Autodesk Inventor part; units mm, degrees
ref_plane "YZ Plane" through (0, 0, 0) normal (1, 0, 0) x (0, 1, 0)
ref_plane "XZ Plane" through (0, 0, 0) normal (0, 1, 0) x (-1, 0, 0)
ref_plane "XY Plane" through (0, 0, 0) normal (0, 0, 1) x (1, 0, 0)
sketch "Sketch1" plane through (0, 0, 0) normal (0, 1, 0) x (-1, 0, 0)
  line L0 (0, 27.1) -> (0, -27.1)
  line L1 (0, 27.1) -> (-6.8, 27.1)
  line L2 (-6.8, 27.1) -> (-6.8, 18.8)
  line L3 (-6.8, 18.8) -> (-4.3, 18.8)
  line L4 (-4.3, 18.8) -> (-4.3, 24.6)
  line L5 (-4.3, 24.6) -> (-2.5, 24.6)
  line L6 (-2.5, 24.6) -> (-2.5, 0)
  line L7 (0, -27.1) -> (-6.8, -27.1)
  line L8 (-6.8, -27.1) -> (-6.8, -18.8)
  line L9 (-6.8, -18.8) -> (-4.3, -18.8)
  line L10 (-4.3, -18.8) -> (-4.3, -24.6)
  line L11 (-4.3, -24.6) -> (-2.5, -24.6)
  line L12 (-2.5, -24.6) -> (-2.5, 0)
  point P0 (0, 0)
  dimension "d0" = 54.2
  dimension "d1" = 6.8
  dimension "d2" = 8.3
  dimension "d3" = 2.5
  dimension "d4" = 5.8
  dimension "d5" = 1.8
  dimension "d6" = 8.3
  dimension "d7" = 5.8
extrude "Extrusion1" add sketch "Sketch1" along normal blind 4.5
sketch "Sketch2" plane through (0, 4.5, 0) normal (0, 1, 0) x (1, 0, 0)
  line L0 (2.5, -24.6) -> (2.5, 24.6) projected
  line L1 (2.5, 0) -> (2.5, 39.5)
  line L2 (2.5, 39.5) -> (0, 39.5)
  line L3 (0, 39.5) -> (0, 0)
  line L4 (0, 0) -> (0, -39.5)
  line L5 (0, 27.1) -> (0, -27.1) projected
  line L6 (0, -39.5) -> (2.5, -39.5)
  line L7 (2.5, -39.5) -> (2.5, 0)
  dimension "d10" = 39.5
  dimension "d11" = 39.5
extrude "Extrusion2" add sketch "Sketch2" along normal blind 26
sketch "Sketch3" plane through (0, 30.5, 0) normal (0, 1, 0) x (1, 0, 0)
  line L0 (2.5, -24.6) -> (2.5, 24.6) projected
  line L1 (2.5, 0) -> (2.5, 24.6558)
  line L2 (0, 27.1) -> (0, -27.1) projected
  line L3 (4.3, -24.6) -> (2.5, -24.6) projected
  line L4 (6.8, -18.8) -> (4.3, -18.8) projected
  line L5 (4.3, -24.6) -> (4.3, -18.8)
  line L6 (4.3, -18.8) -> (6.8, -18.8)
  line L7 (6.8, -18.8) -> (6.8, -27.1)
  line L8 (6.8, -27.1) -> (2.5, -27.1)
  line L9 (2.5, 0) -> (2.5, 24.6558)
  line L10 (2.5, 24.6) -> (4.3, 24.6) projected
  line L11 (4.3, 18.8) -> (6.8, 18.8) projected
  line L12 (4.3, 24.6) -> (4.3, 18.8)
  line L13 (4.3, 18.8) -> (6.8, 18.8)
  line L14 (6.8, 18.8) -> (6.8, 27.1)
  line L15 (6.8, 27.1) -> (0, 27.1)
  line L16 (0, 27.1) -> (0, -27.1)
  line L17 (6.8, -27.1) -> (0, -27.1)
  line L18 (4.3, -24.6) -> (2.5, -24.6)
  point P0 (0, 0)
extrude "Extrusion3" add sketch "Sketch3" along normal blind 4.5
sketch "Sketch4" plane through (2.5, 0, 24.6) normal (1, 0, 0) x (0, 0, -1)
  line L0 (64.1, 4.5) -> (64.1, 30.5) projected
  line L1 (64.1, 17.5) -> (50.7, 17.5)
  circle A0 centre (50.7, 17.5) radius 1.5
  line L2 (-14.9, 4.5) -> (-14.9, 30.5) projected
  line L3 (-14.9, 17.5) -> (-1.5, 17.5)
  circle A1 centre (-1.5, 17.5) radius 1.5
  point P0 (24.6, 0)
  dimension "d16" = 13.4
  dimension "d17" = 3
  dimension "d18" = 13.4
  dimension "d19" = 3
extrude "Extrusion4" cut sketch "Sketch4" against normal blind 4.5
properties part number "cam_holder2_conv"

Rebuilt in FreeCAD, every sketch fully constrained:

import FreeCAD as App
import Part
import Sketcher

doc = App.newDocument("Part")
body = doc.addObject("PartDesign::Body", "Body")

sketch1 = body.newObject("Sketcher::SketchObject", "Sketch")
sketch1.AttachmentSupport = (doc.getObject("XZ_Plane"), [""])
sketch1.MapMode = "FlatFace"
sketch1.addGeometry(Part.LineSegment(App.Vector(0, -27.1, 0), App.Vector(0, 27.1, 0)), False)
sketch1.addGeometry(Part.LineSegment(App.Vector(0, 27.1, 0), App.Vector(6.8, 27.1, 0)), False)
sketch1.addGeometry(Part.LineSegment(App.Vector(6.8, 27.1, 0), App.Vector(6.8, 18.8, 0)), False)
sketch1.addGeometry(Part.LineSegment(App.Vector(6.8, 18.8, 0), App.Vector(4.3, 18.8, 0)), False)
sketch1.addGeometry(Part.LineSegment(App.Vector(4.3, 18.8, 0), App.Vector(4.3, 24.6, 0)), False)
sketch1.addGeometry(Part.LineSegment(App.Vector(4.3, 24.6, 0), App.Vector(2.5, 24.6, 0)), False)
sketch1.addGeometry(Part.LineSegment(App.Vector(2.5, 24.6, 0), App.Vector(2.5, -24.6, 0)), False)
sketch1.addGeometry(Part.LineSegment(App.Vector(2.5, -24.6, 0), App.Vector(4.3, -24.6, 0)), False)
sketch1.addGeometry(Part.LineSegment(App.Vector(4.3, -24.6, 0), App.Vector(4.3, -18.8, 0)), False)
sketch1.addGeometry(Part.LineSegment(App.Vector(4.3, -18.8, 0), App.Vector(6.8, -18.8, 0)), False)
sketch1.addGeometry(Part.LineSegment(App.Vector(6.8, -18.8, 0), App.Vector(6.8, -27.1, 0)), False)
sketch1.addGeometry(Part.LineSegment(App.Vector(6.8, -27.1, 0), App.Vector(0, -27.1, 0)), False)
sketch1.addConstraint(Sketcher.Constraint("Coincident", 0, 2, 1, 1))
sketch1.addConstraint(Sketcher.Constraint("Coincident", 1, 2, 2, 1))
sketch1.addConstraint(Sketcher.Constraint("Coincident", 2, 2, 3, 1))
sketch1.addConstraint(Sketcher.Constraint("Coincident", 3, 2, 4, 1))
sketch1.addConstraint(Sketcher.Constraint("Coincident", 4, 2, 5, 1))
sketch1.addConstraint(Sketcher.Constraint("Coincident", 5, 2, 6, 1))
sketch1.addConstraint(Sketcher.Constraint("Coincident", 6, 2, 7, 1))
sketch1.addConstraint(Sketcher.Constraint("Coincident", 7, 2, 8, 1))
sketch1.addConstraint(Sketcher.Constraint("Coincident", 8, 2, 9, 1))
sketch1.addConstraint(Sketcher.Constraint("Coincident", 9, 2, 10, 1))
sketch1.addConstraint(Sketcher.Constraint("Coincident", 10, 2, 11, 1))
sketch1.addConstraint(Sketcher.Constraint("Coincident", 11, 2, 0, 1))
sketch1.addConstraint(Sketcher.Constraint("Vertical", 0))
sketch1.addConstraint(Sketcher.Constraint("Horizontal", 1))
sketch1.addConstraint(Sketcher.Constraint("Vertical", 2))
sketch1.addConstraint(Sketcher.Constraint("Horizontal", 3))
sketch1.addConstraint(Sketcher.Constraint("Vertical", 4))
sketch1.addConstraint(Sketcher.Constraint("Horizontal", 5))
sketch1.addConstraint(Sketcher.Constraint("Vertical", 6))
sketch1.addConstraint(Sketcher.Constraint("Horizontal", 7))
sketch1.addConstraint(Sketcher.Constraint("Vertical", 8))
sketch1.addConstraint(Sketcher.Constraint("Horizontal", 9))
sketch1.addConstraint(Sketcher.Constraint("Vertical", 10))
sketch1.addConstraint(Sketcher.Constraint("Horizontal", 11))
sketch1.addConstraint(Sketcher.Constraint("Symmetric", 0, 2, 11, 2, -1, 1))
sketch1.addConstraint(Sketcher.Constraint("Symmetric", 4, 2, 7, 2, -1))
sketch1.addConstraint(Sketcher.Constraint("Symmetric", 2, 2, 9, 2, -1))
sketch1.addConstraint(Sketcher.Constraint("DistanceX", 1, 1, 1, 2, 6.8))
sketch1.addConstraint(Sketcher.Constraint("DistanceX", 3, 2, 3, 1, 2.5))
sketch1.addConstraint(Sketcher.Constraint("DistanceX", 5, 2, 5, 1, 1.8))
sketch1.addConstraint(Sketcher.Constraint("DistanceY", 0, 1, 0, 2, 54.2))
sketch1.addConstraint(Sketcher.Constraint("DistanceY", 2, 2, 2, 1, 8.3))
sketch1.addConstraint(Sketcher.Constraint("DistanceY", 4, 1, 4, 2, 5.8))
pad1 = body.newObject("PartDesign::Pad", "Pad")
pad1.Profile = sketch1
pad1.Length = 4.5
pad1.Reversed = True

sketch2 = body.newObject("Sketcher::SketchObject", "Sketch001")
sketch2.AttachmentSupport = (doc.getObject("XZ_Plane"), [""])
sketch2.MapMode = "FlatFace"
sketch2.AttachmentOffset = App.Placement(App.Vector(0, 0, -4.5), App.Rotation())
sketch2.addGeometry(Part.LineSegment(App.Vector(2.5, 39.5, 0), App.Vector(2.5, -39.5, 0)), False)
sketch2.addGeometry(Part.LineSegment(App.Vector(2.5, -39.5, 0), App.Vector(0, -39.5, 0)), False)
sketch2.addGeometry(Part.LineSegment(App.Vector(0, -39.5, 0), App.Vector(0, 39.5, 0)), False)
sketch2.addGeometry(Part.LineSegment(App.Vector(0, 39.5, 0), App.Vector(2.5, 39.5, 0)), False)
sketch2.addConstraint(Sketcher.Constraint("Coincident", 0, 2, 1, 1))
sketch2.addConstraint(Sketcher.Constraint("Coincident", 1, 2, 2, 1))
sketch2.addConstraint(Sketcher.Constraint("Coincident", 2, 2, 3, 1))
sketch2.addConstraint(Sketcher.Constraint("Coincident", 3, 2, 0, 1))
sketch2.addConstraint(Sketcher.Constraint("Vertical", 0))
sketch2.addConstraint(Sketcher.Constraint("Horizontal", 1))
sketch2.addConstraint(Sketcher.Constraint("Vertical", 2))
sketch2.addConstraint(Sketcher.Constraint("Horizontal", 3))
sketch2.addConstraint(Sketcher.Constraint("Symmetric", 1, 2, 2, 2, -1, 1))
sketch2.addConstraint(Sketcher.Constraint("DistanceY", 0, 2, -1, 1, 39.5))
sketch2.addConstraint(Sketcher.Constraint("DistanceX", 1, 2, 1, 1, 2.5))
pad2 = body.newObject("PartDesign::Pad", "Pad001")
pad2.Profile = sketch2
pad2.Length = 26
pad2.Reversed = True

sketch3 = body.newObject("Sketcher::SketchObject", "Sketch002")
sketch3.AttachmentSupport = (doc.getObject("XZ_Plane"), [""])
sketch3.MapMode = "FlatFace"
sketch3.AttachmentOffset = App.Placement(App.Vector(0, 0, -30.5), App.Rotation())
sketch3.addGeometry(Part.LineSegment(App.Vector(4.3, 24.6, 0), App.Vector(2.5, 24.6, 0)), False)
sketch3.addGeometry(Part.LineSegment(App.Vector(2.5, 24.6, 0), App.Vector(2.5, -24.6, 0)), False)
sketch3.addGeometry(Part.LineSegment(App.Vector(2.5, -24.6, 0), App.Vector(4.3, -24.6, 0)), False)
sketch3.addGeometry(Part.LineSegment(App.Vector(4.3, -24.6, 0), App.Vector(4.3, -18.8, 0)), False)
sketch3.addGeometry(Part.LineSegment(App.Vector(4.3, -18.8, 0), App.Vector(6.8, -18.8, 0)), False)
sketch3.addGeometry(Part.LineSegment(App.Vector(6.8, -18.8, 0), App.Vector(6.8, -27.1, 0)), False)
sketch3.addGeometry(Part.LineSegment(App.Vector(6.8, -27.1, 0), App.Vector(0, -27.1, 0)), False)
sketch3.addGeometry(Part.LineSegment(App.Vector(0, -27.1, 0), App.Vector(0, 27.1, 0)), False)
sketch3.addGeometry(Part.LineSegment(App.Vector(0, 27.1, 0), App.Vector(6.8, 27.1, 0)), False)
sketch3.addGeometry(Part.LineSegment(App.Vector(6.8, 27.1, 0), App.Vector(6.8, 18.8, 0)), False)
sketch3.addGeometry(Part.LineSegment(App.Vector(6.8, 18.8, 0), App.Vector(4.3, 18.8, 0)), False)
sketch3.addGeometry(Part.LineSegment(App.Vector(4.3, 18.8, 0), App.Vector(4.3, 24.6, 0)), False)
sketch3.addConstraint(Sketcher.Constraint("Coincident", 0, 2, 1, 1))
sketch3.addConstraint(Sketcher.Constraint("Coincident", 1, 2, 2, 1))
sketch3.addConstraint(Sketcher.Constraint("Coincident", 2, 2, 3, 1))
sketch3.addConstraint(Sketcher.Constraint("Coincident", 3, 2, 4, 1))
sketch3.addConstraint(Sketcher.Constraint("Coincident", 4, 2, 5, 1))
sketch3.addConstraint(Sketcher.Constraint("Coincident", 5, 2, 6, 1))
sketch3.addConstraint(Sketcher.Constraint("Coincident", 6, 2, 7, 1))
sketch3.addConstraint(Sketcher.Constraint("Coincident", 7, 2, 8, 1))
sketch3.addConstraint(Sketcher.Constraint("Coincident", 8, 2, 9, 1))
sketch3.addConstraint(Sketcher.Constraint("Coincident", 9, 2, 10, 1))
sketch3.addConstraint(Sketcher.Constraint("Coincident", 10, 2, 11, 1))
sketch3.addConstraint(Sketcher.Constraint("Coincident", 11, 2, 0, 1))
sketch3.addConstraint(Sketcher.Constraint("Horizontal", 0))
sketch3.addConstraint(Sketcher.Constraint("Vertical", 1))
sketch3.addConstraint(Sketcher.Constraint("Horizontal", 2))
sketch3.addConstraint(Sketcher.Constraint("Vertical", 3))
sketch3.addConstraint(Sketcher.Constraint("Horizontal", 4))
sketch3.addConstraint(Sketcher.Constraint("Vertical", 5))
sketch3.addConstraint(Sketcher.Constraint("Horizontal", 6))
sketch3.addConstraint(Sketcher.Constraint("Vertical", 7))
sketch3.addConstraint(Sketcher.Constraint("Horizontal", 8))
sketch3.addConstraint(Sketcher.Constraint("Vertical", 9))
sketch3.addConstraint(Sketcher.Constraint("Horizontal", 10))
sketch3.addConstraint(Sketcher.Constraint("Vertical", 11))
sketch3.addConstraint(Sketcher.Constraint("Symmetric", 6, 2, 7, 2, -1, 1))
sketch3.addConstraint(Sketcher.Constraint("Symmetric", 4, 2, 9, 2, -1))
sketch3.addConstraint(Sketcher.Constraint("Symmetric", 2, 2, 11, 2, -1))
sketch3.addConstraint(Sketcher.Constraint("DistanceX", 0, 2, 0, 1, 1.8))
sketch3.addConstraint(Sketcher.Constraint("DistanceX", 4, 1, 4, 2, 2.5))
sketch3.addConstraint(Sketcher.Constraint("DistanceX", 6, 2, 6, 1, 6.8))
sketch3.addConstraint(Sketcher.Constraint("DistanceY", 1, 2, 1, 1, 49.2))
sketch3.addConstraint(Sketcher.Constraint("DistanceY", 3, 1, 3, 2, 5.8))
sketch3.addConstraint(Sketcher.Constraint("DistanceY", 5, 2, 5, 1, 8.3))
pad3 = body.newObject("PartDesign::Pad", "Pad002")
pad3.Profile = sketch3
pad3.Length = 4.5
pad3.Reversed = True

sketch4 = body.newObject("Sketcher::SketchObject", "Sketch003")
sketch4.AttachmentSupport = (doc.getObject("YZ_Plane"), [""])
sketch4.MapMode = "FlatFace"
sketch4.AttachmentOffset = App.Placement(App.Vector(0, 0, 2.5), App.Rotation())
sketch4.addGeometry(Part.Circle(App.Vector(17.5, -26.1, 0), App.Vector(0, 0, 1), 1.5), False)
sketch4.addGeometry(Part.Circle(App.Vector(17.5, 26.1, 0), App.Vector(0, 0, 1), 1.5), False)
sketch4.addConstraint(Sketcher.Constraint("Equal", 0, 1))
sketch4.addConstraint(Sketcher.Constraint("Symmetric", 0, 3, 1, 3, -1))
sketch4.addConstraint(Sketcher.Constraint("Diameter", 0, 3.0))
sketch4.addConstraint(Sketcher.Constraint("DistanceX", -1, 1, 0, 3, 17.5))
sketch4.addConstraint(Sketcher.Constraint("DistanceY", 0, 3, -1, 1, 26.1))
pocket1 = body.newObject("PartDesign::Pocket", "Pocket")
pocket1.Profile = sketch4
pocket1.Length = 4.5

doc.recompute()
